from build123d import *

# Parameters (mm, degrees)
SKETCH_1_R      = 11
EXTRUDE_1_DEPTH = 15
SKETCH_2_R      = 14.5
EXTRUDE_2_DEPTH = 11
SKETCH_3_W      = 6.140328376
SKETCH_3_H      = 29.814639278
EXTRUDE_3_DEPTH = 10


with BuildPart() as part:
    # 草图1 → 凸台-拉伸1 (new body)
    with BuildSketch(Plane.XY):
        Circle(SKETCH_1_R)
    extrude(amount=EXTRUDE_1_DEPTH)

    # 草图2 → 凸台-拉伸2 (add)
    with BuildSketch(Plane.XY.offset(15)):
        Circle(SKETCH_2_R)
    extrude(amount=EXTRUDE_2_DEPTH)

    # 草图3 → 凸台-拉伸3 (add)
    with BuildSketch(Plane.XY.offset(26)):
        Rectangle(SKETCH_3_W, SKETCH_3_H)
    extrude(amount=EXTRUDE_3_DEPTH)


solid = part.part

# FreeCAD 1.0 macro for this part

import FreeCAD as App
import Part
import Sketcher
Q = App.Units.Quantity

doc = App.newDocument("Part")
body = doc.addObject("PartDesign::Body", "Body")

sketch1 = doc.addObject("Sketcher::SketchObject", "Sketch")
body.addObject(sketch1)
sketch1.AttachmentSupport = (doc.XY_Plane, [""])
sketch1.MapMode = "FlatFace"
sketch1.addGeometry(Part.Circle(App.Vector(0, 0, 0), App.Vector(0, 0, 1), 11), False)
sketch1.addConstraint([
    Sketcher.Constraint("Coincident", 0, 3, -1, 1),
    Sketcher.Constraint("Diameter", 0, Q("22 mm")),
])
pad1 = doc.addObject("PartDesign::Pad", "Pad")
body.addObject(pad1)
pad1.Profile = sketch1
pad1.Length = 15

sketch2 = doc.addObject("Sketcher::SketchObject", "Sketch001")
body.addObject(sketch2)
sketch2.AttachmentSupport = (doc.XY_Plane, [""])
sketch2.MapMode = "FlatFace"
sketch2.AttachmentOffset = App.Placement(App.Vector(0, 0, 15), App.Rotation())
sketch2.addGeometry(Part.Circle(App.Vector(0, 0, 0), App.Vector(0, 0, 1), 14), False)
sketch2.addConstraint([
    Sketcher.Constraint("Coincident", 0, 3, -1, 1),
    Sketcher.Constraint("Diameter", 0, Q("29 mm")),
])
pad2 = doc.addObject("PartDesign::Pad", "Pad001")
body.addObject(pad2)
pad2.Profile = sketch2
pad2.Length = 11

sketch3 = doc.addObject("Sketcher::SketchObject", "Sketch002")
body.addObject(sketch3)
sketch3.AttachmentSupport = (doc.XY_Plane, [""])
sketch3.MapMode = "FlatFace"
sketch3.AttachmentOffset = App.Placement(App.Vector(0, 0, 26), App.Rotation())
sketch3.addGeometry([
    Part.LineSegment(App.Vector(-3, 15, 0), App.Vector(-3, -15, 0)),
    Part.LineSegment(App.Vector(-3, -15, 0), App.Vector(3, -15, 0)),
    Part.LineSegment(App.Vector(3, -15, 0), App.Vector(3, 15, 0)),
    Part.LineSegment(App.Vector(3, 15, 0), App.Vector(-3, 15, 0)),
], False)
sketch3.addConstraint([
    Sketcher.Constraint("Coincident", 0, 2, 1, 1),
    Sketcher.Constraint("Coincident", 1, 2, 2, 1),
    Sketcher.Constraint("Coincident", 2, 2, 3, 1),
    Sketcher.Constraint("Coincident", 3, 2, 0, 1),
    Sketcher.Constraint("Vertical", 0),
    Sketcher.Constraint("Horizontal", 1),
    Sketcher.Constraint("Vertical", 2),
    Sketcher.Constraint("Horizontal", 3),
    Sketcher.Constraint("Symmetric", 0, 2, 2, 2, -1, 1),
    Sketcher.Constraint("DistanceX", 1, 1, 1, 2, Q("6.140328 mm")),
    Sketcher.Constraint("DistanceY", 0, 2, 0, 1, Q("29.814639 mm")),
])
pad3 = doc.addObject("PartDesign::Pad", "Pad002")
body.addObject(pad3)
pad3.Profile = sketch3
pad3.Length = 10

doc.recompute()
